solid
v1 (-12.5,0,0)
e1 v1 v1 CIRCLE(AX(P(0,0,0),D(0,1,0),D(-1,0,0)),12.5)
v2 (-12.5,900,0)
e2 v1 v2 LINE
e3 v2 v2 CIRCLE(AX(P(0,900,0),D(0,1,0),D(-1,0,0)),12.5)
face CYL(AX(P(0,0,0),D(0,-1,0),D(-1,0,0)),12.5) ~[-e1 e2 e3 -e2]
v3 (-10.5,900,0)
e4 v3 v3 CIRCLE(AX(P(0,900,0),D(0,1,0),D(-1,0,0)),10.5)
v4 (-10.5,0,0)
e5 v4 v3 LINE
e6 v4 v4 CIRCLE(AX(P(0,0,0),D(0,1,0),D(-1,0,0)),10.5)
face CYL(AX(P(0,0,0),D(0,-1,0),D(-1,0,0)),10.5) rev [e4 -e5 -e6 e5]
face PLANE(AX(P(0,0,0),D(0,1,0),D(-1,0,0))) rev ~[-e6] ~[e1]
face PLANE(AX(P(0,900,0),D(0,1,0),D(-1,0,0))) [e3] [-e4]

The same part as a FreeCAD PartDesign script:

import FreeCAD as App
import Part
import Sketcher

V = App.Vector
Q = App.Units.Quantity

doc = App.newDocument("Part")
body = doc.addObject("PartDesign::Body", "Body")

# Sketch on XZ plane
sketch1 = body.newObject("Sketcher::SketchObject", "Sketch")
sketch1.AttachmentSupport = (doc.getObject("XZ_Plane"), [""])
sketch1.MapMode = "FlatFace"
sketch1.addGeometry([
    Part.Circle(V(0, 0, 0), V(0, 0, 1), 12),
    Part.Circle(V(0, 0, 0), V(0, 0, 1), 10),
], False)
sketch1.addConstraint([
    Sketcher.Constraint("Coincident", 0, 3, -1, 1),
    Sketcher.Constraint("Coincident", 1, 3, -1, 1),
    Sketcher.Constraint("Diameter", 0, Q("25 mm")),
    Sketcher.Constraint("Diameter", 1, Q("21 mm")),
])
pad1 = body.newObject("PartDesign::Pad", "Pad")
pad1.Profile = sketch1
pad1.Length = 900
pad1.Reversed = True

doc.recompute()
